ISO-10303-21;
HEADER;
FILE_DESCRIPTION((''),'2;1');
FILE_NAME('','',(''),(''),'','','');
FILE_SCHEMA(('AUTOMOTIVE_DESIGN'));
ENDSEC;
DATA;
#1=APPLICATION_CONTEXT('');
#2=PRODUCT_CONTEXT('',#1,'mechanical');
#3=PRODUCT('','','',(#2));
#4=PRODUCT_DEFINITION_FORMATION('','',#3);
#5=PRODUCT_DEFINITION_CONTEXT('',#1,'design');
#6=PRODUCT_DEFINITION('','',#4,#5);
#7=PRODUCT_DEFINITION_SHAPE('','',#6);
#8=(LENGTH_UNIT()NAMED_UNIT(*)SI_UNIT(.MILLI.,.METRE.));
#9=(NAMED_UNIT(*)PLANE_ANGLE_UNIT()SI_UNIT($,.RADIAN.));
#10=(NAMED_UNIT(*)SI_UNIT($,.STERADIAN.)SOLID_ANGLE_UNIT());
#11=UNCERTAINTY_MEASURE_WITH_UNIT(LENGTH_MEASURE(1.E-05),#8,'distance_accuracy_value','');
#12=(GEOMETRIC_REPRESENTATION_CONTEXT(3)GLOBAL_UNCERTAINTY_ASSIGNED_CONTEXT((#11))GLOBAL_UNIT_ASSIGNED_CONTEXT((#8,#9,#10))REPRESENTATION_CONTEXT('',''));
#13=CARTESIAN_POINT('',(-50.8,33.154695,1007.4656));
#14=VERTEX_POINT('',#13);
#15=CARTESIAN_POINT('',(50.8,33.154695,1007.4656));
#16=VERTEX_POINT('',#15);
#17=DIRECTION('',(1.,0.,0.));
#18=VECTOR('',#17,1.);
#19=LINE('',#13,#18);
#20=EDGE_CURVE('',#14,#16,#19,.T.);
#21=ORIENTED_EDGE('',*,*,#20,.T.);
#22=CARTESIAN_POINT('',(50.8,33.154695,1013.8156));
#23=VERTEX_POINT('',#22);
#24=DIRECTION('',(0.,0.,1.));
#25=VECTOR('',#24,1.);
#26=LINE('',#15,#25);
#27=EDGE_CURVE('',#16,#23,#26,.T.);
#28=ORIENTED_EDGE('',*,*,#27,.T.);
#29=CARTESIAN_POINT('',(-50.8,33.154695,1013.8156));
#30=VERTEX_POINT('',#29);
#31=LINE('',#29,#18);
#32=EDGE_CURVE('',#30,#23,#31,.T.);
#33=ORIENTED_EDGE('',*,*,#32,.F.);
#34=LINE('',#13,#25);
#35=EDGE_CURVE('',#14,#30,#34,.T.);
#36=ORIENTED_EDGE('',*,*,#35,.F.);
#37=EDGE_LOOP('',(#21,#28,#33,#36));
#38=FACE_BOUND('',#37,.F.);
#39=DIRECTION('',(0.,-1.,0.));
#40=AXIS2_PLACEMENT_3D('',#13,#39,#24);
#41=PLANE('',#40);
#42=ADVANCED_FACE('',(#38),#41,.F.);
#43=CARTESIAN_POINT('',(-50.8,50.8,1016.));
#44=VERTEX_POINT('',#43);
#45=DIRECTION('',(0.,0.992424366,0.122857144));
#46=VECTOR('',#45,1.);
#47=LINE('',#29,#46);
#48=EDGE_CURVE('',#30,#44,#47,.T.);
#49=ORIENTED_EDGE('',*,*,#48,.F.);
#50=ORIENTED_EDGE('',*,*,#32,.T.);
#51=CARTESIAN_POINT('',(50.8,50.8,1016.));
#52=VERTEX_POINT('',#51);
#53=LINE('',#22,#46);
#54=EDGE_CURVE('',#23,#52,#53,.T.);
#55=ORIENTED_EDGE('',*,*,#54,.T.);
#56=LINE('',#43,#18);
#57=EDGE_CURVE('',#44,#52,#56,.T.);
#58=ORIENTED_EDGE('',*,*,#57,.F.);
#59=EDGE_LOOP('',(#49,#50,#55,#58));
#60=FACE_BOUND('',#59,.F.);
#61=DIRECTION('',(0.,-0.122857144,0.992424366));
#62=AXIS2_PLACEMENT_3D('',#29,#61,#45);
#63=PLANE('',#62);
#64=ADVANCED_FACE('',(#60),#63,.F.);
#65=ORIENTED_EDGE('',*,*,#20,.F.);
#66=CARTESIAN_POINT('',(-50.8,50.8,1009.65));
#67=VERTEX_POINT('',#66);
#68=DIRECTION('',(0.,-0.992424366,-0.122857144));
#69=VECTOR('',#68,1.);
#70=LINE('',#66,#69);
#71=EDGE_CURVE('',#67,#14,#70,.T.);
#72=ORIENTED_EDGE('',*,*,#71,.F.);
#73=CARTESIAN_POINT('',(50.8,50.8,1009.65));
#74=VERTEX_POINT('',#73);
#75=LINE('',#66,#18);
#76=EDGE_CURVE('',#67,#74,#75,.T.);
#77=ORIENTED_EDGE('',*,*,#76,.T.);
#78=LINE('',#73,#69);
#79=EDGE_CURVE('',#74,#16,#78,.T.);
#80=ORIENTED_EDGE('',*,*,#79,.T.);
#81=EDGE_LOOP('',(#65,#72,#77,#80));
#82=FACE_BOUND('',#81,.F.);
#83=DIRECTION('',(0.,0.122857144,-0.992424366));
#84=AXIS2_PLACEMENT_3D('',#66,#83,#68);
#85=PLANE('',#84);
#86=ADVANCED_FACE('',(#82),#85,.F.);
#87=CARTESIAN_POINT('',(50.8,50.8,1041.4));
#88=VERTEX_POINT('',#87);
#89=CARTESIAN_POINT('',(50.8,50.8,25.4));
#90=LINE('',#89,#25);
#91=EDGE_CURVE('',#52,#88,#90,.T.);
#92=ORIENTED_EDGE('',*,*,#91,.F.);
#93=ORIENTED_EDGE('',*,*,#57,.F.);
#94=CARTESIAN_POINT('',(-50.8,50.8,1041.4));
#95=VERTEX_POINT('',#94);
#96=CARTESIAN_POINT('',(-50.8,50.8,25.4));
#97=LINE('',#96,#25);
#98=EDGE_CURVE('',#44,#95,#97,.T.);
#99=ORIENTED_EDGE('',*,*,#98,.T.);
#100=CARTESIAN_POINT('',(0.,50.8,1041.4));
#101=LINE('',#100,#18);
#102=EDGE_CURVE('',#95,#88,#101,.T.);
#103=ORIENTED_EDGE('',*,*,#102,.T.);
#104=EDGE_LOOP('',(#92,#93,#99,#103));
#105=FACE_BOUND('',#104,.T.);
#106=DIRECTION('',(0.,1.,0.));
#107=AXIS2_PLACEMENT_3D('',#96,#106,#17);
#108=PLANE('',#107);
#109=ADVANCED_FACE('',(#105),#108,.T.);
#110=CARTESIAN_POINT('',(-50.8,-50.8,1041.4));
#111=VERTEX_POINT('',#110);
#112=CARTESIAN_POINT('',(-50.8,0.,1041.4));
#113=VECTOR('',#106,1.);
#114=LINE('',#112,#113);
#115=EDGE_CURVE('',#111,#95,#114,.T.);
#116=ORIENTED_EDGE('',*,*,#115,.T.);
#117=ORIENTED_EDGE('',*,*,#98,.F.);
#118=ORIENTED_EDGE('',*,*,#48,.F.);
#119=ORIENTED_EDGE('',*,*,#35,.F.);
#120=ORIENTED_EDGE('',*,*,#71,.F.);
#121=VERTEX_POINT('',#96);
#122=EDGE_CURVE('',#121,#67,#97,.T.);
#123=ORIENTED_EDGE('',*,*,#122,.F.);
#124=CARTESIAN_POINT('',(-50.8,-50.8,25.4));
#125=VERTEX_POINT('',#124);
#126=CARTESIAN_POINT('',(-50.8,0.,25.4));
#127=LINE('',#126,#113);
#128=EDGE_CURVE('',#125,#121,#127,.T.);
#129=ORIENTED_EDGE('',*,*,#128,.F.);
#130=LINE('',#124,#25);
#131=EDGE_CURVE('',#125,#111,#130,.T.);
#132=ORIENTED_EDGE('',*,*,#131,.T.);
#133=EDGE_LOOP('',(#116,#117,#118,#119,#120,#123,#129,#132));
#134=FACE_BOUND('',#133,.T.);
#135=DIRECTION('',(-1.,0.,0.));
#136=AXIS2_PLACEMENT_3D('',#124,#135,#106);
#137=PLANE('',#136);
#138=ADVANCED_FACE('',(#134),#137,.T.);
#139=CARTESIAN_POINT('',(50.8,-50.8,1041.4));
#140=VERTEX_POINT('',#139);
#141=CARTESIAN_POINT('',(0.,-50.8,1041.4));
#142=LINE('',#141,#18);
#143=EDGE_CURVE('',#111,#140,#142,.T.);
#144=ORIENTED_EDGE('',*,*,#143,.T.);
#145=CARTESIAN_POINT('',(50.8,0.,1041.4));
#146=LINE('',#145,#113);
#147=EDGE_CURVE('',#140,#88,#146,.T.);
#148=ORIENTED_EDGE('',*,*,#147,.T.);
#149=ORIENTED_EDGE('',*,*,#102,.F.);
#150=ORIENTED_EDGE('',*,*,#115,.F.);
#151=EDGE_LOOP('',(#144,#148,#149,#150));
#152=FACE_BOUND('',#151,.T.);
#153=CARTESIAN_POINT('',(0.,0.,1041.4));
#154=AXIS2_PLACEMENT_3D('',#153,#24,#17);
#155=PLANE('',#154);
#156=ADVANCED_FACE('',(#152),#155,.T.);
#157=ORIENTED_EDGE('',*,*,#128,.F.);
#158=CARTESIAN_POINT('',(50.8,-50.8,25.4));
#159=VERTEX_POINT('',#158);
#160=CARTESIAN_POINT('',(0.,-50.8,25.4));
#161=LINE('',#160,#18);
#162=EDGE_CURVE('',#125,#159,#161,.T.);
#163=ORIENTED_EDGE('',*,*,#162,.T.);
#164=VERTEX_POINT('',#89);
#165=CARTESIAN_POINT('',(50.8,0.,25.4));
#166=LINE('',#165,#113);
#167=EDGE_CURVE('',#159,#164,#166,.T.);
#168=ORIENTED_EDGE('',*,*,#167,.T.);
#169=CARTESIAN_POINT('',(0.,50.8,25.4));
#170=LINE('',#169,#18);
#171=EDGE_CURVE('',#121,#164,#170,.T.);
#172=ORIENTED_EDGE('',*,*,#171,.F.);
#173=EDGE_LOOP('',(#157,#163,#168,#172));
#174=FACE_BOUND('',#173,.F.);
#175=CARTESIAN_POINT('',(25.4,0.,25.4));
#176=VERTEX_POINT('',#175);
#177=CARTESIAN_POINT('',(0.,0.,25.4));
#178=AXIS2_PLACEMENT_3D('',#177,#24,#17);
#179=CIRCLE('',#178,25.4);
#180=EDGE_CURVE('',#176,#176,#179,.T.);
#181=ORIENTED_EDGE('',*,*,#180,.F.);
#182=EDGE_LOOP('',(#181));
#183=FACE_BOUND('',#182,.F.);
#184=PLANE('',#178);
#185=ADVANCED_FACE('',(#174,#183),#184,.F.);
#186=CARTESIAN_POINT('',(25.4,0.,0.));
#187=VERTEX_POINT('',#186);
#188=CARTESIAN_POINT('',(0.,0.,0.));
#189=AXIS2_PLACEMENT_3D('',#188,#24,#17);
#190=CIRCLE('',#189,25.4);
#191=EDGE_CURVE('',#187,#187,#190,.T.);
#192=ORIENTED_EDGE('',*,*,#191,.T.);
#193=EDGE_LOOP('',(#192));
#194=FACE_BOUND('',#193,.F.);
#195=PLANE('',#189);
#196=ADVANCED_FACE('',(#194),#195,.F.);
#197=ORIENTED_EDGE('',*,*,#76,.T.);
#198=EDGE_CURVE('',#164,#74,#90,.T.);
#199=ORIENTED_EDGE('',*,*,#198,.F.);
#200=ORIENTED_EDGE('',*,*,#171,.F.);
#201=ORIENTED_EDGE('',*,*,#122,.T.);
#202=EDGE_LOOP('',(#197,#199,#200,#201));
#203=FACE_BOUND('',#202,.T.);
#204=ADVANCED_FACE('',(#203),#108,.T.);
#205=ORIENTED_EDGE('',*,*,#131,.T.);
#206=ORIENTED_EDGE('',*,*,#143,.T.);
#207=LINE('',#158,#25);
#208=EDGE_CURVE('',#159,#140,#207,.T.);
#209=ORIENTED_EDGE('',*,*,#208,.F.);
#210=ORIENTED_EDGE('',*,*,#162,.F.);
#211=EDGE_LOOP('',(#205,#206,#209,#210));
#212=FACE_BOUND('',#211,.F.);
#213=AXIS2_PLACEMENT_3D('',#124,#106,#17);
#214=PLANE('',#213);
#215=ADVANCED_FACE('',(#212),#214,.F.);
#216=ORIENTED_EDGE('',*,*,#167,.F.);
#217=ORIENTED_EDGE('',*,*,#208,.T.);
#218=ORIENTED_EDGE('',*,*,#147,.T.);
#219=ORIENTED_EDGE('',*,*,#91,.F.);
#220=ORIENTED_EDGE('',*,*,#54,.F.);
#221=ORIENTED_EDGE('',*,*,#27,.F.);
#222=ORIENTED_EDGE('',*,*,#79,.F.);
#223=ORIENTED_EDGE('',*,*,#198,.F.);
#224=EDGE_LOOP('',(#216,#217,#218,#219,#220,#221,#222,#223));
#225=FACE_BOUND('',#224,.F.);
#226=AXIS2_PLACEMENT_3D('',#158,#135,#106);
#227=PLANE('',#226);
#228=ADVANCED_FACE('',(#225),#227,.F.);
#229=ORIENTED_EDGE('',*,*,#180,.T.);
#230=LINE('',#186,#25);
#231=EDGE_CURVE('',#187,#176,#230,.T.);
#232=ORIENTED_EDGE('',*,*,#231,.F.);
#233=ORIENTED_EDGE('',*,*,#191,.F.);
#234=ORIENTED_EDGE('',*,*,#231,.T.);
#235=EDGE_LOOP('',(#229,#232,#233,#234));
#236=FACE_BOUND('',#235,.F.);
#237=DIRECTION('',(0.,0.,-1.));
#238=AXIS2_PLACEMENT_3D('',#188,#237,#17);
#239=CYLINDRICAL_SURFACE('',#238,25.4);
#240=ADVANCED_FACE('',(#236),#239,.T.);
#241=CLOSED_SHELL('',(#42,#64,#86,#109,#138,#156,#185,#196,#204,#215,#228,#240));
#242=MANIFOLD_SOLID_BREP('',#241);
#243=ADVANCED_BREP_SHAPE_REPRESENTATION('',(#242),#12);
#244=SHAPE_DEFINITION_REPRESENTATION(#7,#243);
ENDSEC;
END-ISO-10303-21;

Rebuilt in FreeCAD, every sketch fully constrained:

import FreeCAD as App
import Part
import Sketcher

V = App.Vector
Q = App.Units.Quantity

doc = App.newDocument("Part")
body = doc.addObject("PartDesign::Body", "Body")

# Sketch on XY plane
sketch1 = body.newObject("Sketcher::SketchObject", "Sketch")
sketch1.AttachmentSupport = (doc.getObject("XY_Plane"), [""])
sketch1.MapMode = "FlatFace"
sketch1.addGeometry(Part.Circle(V(0, 0, 0), V(0, 0, 1), 25.4), False)
sketch1.addConstraint([
    Sketcher.Constraint("Coincident", 0, 3, -1, 1),
    Sketcher.Constraint("Diameter", 0, Q("2 in")),
])
pad1 = body.newObject("PartDesign::Pad", "Pad")
pad1.Profile = sketch1
pad1.Length = Q("1 in")

# Sketch on XY plane
sketch2 = body.newObject("Sketcher::SketchObject", "Sketch001")
sketch2.AttachmentSupport = (doc.getObject("XY_Plane"), [""])
sketch2.MapMode = "FlatFace"
sketch2.AttachmentOffset = App.Placement(V(0, 0, 1 * 25.4), App.Rotation())
sketch2.addGeometry([
    Part.LineSegment(V(-50.8, 50.8, 0), V(-50.8, -50.8, 0)),
    Part.LineSegment(V(-50.8, -50.8, 0), V(50.8, -50.8, 0)),
    Part.LineSegment(V(50.8, -50.8, 0), V(50.8, 50.8, 0)),
    Part.LineSegment(V(50.8, 50.8, 0), V(-50.8, 50.8, 0)),
], False)
sketch2.addConstraint([
    Sketcher.Constraint("Coincident", 0, 2, 1, 1),
    Sketcher.Constraint("Coincident", 1, 2, 2, 1),
    Sketcher.Constraint("Coincident", 2, 2, 3, 1),
    Sketcher.Constraint("Coincident", 3, 2, 0, 1),
    Sketcher.Constraint("Vertical", 0),
    Sketcher.Constraint("Horizontal", 1),
    Sketcher.Constraint("Vertical", 2),
    Sketcher.Constraint("Horizontal", 3),
    Sketcher.Constraint("Symmetric", 0, 2, 2, 2, -1, 1),
    Sketcher.Constraint("Equal", 3, 0),
    Sketcher.Constraint("DistanceX", 1, 1, 1, 2, Q("4 in")),
])
pad2 = body.newObject("PartDesign::Pad", "Pad001")
pad2.Profile = sketch2
pad2.Length = Q("40 in")

# Sketch on YZ plane
sketch3 = body.newObject("Sketcher::SketchObject", "Sketch002")
sketch3.AttachmentSupport = (doc.getObject("YZ_Plane"), [""])
sketch3.MapMode = "FlatFace"
sketch3.AttachmentOffset = App.Placement(V(0, 0, -2 * 25.4), App.Rotation())
sketch3.addGeometry([
    Part.LineSegment(V(33.154695, 1013.8156, 0), V(50.8, 1016, 0)),
    Part.LineSegment(V(50.8, 1016, 0), V(50.8, 1009.65, 0)),
    Part.LineSegment(V(50.8, 1009.65, 0), V(33.154695, 1007.4656, 0)),
    Part.LineSegment(V(33.154695, 1007.4656, 0), V(33.154695, 1013.8156, 0)),
], False)
sketch3.addConstraint([
    Sketcher.Constraint("Coincident", 0, 2, 1, 1),
    Sketcher.Constraint("Coincident", 1, 2, 2, 1),
    Sketcher.Constraint("Coincident", 2, 2, 3, 1),
    Sketcher.Constraint("Coincident", 3, 2, 0, 1),
    Sketcher.Constraint("Vertical", 1),
    Sketcher.Constraint("Vertical", 3),
    Sketcher.Constraint("Parallel", 0, 2),
    Sketcher.Constraint("DistanceX", -1, 1, 0, 2, Q("2 in")),
    Sketcher.Constraint("DistanceY", -1, 1, 0, 2, Q("40 in")),
    Sketcher.Constraint("Distance", 0, Q("0.7 in")),
    Sketcher.Constraint("DistanceY", 1, 2, 1, 1, Q("0.25 in")),
    Sketcher.Constraint("DistanceY", -1, 1, 2, 2, Q("39.664 in")),
])
pocket1 = body.newObject("PartDesign::Pocket", "Pocket")
pocket1.Profile = sketch3
pocket1.Length = Q("4 in")
pocket1.Reversed = True

doc.recompute()
